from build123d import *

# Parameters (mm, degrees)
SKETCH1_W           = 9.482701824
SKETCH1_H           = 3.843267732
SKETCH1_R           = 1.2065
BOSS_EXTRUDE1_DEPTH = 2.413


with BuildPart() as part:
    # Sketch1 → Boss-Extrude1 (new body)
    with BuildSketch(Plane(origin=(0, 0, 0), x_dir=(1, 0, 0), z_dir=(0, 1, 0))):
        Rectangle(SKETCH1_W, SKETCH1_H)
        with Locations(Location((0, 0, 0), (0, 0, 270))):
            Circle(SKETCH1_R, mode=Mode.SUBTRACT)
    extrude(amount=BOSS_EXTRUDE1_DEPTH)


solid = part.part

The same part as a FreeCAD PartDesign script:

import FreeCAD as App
import Part
import Sketcher

V = App.Vector
Q = App.Units.Quantity


def add_polygon(sketch, points):
    """Adds a closed chain of lines whose ends are joined by coincident constraints."""
    first, n = sketch.GeometryCount, len(points)
    for a, b in zip(points, points[1:] + points[:1]):
        sketch.addGeometry(Part.LineSegment(App.Vector(*a, 0), App.Vector(*b, 0)), False)
    for i in range(n):
        sketch.addConstraint(Sketcher.Constraint("Coincident", first + i, 2, first + (i + 1) % n, 1))

doc = App.newDocument("Part")
params = doc.addObject("Spreadsheet::Sheet", "Params")
for row, (alias, value) in enumerate([
    ("sketch1_diameter", "0.095 in"),
    ("pad1_length", "0.095 in"),
], start=1):
    params.set(f"A{row}", alias)
    params.set(f"B{row}", "=" + value)
    params.setAlias(f"B{row}", alias)

body = doc.addObject("PartDesign::Body", "Body")

# Sketch on XZ plane
sketch1 = doc.addObject("Sketcher::SketchObject", "Sketch")
body.addObject(sketch1)
sketch1.AttachmentSupport = (doc.XZ_Plane, [""])
sketch1.MapMode = "FlatFace"
add_polygon(sketch1, [(-4.7, -1.9), (-4.7, 1.9), (4.7, 1.9), (4.7, -1.9)])  # lines 0-3
sketch1.addGeometry(Part.Circle(V(0, 0, 0), V(0, 0, 1), 1.2), False)  # 4
sketch1.addConstraint(Sketcher.Constraint("Vertical", 0))
sketch1.addConstraint(Sketcher.Constraint("Horizontal", 1))
sketch1.addConstraint(Sketcher.Constraint("Vertical", 2))
sketch1.addConstraint(Sketcher.Constraint("Horizontal", 3))
sketch1.addConstraint(Sketcher.Constraint("Coincident", 4, 3, -1, 1))
sketch1.addConstraint(Sketcher.Constraint("Symmetric", 0, 2, 2, 2, -1, 1))
sketch1.addConstraint(Sketcher.Constraint("Diameter", 4, Q("0.095 in")))
sketch1.addConstraint(Sketcher.Constraint("DistanceX", 1, 1, 1, 2, Q("9.482702 mm")))
sketch1.addConstraint(Sketcher.Constraint("DistanceY", 0, 1, 0, 2, Q("3.843268 mm")))
sketch1.setExpression("Constraints[10]", "Params.sketch1_diameter")
pad1 = doc.addObject("PartDesign::Pad", "Pad")
body.addObject(pad1)
pad1.Profile = sketch1
pad1.setExpression("Length", "Params.pad1_length")
pad1.Reversed = True

doc.recompute()
